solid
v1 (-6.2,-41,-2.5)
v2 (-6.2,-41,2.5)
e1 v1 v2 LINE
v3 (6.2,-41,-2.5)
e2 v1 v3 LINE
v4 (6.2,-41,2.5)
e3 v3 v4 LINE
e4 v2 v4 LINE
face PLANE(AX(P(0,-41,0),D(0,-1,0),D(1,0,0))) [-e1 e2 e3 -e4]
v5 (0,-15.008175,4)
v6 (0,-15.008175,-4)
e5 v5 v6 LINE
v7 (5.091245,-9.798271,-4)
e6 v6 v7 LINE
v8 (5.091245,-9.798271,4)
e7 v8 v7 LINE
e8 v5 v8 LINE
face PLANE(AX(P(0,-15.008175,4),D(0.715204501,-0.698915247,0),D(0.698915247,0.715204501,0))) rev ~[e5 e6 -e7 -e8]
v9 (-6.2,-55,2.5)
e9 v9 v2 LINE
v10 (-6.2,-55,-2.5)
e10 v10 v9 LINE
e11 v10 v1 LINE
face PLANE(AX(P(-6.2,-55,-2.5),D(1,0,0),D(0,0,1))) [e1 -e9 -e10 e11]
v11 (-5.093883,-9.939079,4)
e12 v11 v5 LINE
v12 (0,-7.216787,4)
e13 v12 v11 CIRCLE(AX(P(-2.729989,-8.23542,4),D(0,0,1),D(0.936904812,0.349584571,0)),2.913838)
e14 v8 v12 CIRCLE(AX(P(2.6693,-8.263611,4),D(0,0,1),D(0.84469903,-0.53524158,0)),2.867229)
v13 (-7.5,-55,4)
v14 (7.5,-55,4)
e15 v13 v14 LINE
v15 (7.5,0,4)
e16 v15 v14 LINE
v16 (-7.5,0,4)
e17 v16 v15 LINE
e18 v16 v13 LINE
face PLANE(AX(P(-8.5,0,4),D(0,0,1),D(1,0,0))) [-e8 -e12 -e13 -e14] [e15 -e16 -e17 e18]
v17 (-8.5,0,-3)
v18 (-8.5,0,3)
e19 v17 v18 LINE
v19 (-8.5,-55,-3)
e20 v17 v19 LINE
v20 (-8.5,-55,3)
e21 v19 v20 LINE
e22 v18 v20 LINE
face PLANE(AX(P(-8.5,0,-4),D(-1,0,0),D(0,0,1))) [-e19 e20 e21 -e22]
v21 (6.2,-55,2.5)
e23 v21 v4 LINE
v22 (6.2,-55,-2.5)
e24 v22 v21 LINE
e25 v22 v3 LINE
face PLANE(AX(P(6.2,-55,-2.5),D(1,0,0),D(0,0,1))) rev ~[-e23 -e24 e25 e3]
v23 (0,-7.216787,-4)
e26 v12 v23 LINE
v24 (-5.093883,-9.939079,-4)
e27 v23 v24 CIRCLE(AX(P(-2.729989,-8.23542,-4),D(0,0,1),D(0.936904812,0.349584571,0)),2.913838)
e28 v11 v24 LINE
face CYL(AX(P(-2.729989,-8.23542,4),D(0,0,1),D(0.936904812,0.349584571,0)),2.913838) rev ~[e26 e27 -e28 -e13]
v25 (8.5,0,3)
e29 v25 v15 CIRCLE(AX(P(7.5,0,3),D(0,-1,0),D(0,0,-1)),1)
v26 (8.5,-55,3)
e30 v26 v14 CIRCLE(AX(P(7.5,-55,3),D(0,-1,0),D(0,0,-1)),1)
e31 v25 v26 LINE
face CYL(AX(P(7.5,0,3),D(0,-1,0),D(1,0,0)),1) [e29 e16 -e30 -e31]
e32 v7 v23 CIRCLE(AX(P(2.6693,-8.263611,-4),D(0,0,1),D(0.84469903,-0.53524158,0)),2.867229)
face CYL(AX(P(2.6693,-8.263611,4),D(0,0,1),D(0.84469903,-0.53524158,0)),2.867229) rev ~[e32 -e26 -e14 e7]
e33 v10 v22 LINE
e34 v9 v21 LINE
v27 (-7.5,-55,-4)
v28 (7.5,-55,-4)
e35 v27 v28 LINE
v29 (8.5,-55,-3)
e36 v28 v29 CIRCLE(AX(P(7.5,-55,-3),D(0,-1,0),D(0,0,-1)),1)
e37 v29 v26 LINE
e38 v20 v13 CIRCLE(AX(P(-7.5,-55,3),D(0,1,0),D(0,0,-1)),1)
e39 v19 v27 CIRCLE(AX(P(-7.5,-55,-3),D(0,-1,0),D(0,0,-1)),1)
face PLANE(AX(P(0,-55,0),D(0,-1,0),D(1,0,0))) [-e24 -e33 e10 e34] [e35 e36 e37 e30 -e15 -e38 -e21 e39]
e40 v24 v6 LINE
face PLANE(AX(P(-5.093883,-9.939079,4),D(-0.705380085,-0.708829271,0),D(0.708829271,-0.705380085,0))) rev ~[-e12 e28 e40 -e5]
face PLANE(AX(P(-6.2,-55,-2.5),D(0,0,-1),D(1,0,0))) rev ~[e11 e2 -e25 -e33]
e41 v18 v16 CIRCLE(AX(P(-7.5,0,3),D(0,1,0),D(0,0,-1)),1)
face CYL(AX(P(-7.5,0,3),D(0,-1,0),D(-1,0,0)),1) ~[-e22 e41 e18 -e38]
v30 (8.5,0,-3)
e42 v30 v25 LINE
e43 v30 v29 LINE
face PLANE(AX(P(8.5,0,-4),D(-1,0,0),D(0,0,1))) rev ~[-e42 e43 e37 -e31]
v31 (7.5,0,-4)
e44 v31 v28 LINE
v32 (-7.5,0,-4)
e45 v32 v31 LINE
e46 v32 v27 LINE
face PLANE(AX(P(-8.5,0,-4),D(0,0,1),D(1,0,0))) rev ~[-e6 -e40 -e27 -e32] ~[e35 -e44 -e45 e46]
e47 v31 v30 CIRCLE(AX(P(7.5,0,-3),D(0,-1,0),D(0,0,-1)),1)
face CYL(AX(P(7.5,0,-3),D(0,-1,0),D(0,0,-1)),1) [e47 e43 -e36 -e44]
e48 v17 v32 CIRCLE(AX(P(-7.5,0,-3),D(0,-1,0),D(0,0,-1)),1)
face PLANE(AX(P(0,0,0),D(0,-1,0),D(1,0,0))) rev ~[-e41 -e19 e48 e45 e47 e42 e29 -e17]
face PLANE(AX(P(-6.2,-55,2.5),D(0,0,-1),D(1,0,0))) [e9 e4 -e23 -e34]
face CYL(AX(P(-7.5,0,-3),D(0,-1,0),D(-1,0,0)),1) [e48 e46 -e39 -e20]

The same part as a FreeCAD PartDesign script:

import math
import FreeCAD as App
import Part
import Sketcher

V = App.Vector
Q = App.Units.Quantity


def edges_at(feature, points):
    """Names of the edges that pass closest to the given points."""
    edges = feature.Shape.Edges
    near = lambda p: min(range(len(edges)), key=lambda i: edges[i].distToShape(Part.Vertex(*p))[0])
    return sorted({f"Edge{near(p) + 1}" for p in points})


def add_polygon(sketch, points):
    """Adds a closed chain of lines whose ends are joined by coincident constraints."""
    first, n = sketch.GeometryCount, len(points)
    for a, b in zip(points, points[1:] + points[:1]):
        sketch.addGeometry(Part.LineSegment(App.Vector(*a, 0), App.Vector(*b, 0)), False)
    for i in range(n):
        sketch.addConstraint(Sketcher.Constraint("Coincident", first + i, 2, first + (i + 1) % n, 1))

doc = App.newDocument("Part")
body = doc.addObject("PartDesign::Body", "Body")

sketch1 = doc.addObject("Sketcher::SketchObject", "Sketch")
body.addObject(sketch1)
sketch1.AttachmentSupport = (doc.XZ_Plane, [""])
sketch1.MapMode = "FlatFace"
add_polygon(sketch1, [(-8, 4), (-8, -4), (8, -4), (8, 4)])
sketch1.addConstraint([
    Sketcher.Constraint("Vertical", 0),
    Sketcher.Constraint("Horizontal", 1),
    Sketcher.Constraint("Vertical", 2),
    Sketcher.Constraint("Horizontal", 3),
    Sketcher.Constraint("Symmetric", 0, 2, 2, 2, -1, 1),
    Sketcher.Constraint("DistanceX", 1, 1, 1, 2, Q("17 mm")),
    Sketcher.Constraint("DistanceY", 0, 2, 0, 1, Q("8 mm")),
])
pad1 = doc.addObject("PartDesign::Pad", "Pad")
body.addObject(pad1)
pad1.Profile = sketch1
pad1.Length = 55
doc.recompute()

fillet = doc.addObject("PartDesign::Fillet", "Fillet")
body.addObject(fillet)
fillet.Base = (pad1, edges_at(pad1, [
    (-8.5, -27.5, 4),
    (-8.5, -27.5, -4),
    (8.5, -27.5, -4),
    (8.5, -27.5, 4),
]))
fillet.Radius = 1

sketch2 = doc.addObject("Sketcher::SketchObject", "Sketch001")
body.addObject(sketch2)
sketch2.AttachmentSupport = (doc.XZ_Plane, [""])
sketch2.MapMode = "FlatFace"
sketch2.AttachmentOffset = App.Placement(V(0, 0, 55), App.Rotation())
add_polygon(sketch2, [(-6, 2), (-6, -2), (6, -2), (6, 2)])
sketch2.addConstraint([
    Sketcher.Constraint("Vertical", 0),
    Sketcher.Constraint("Horizontal", 1),
    Sketcher.Constraint("Vertical", 2),
    Sketcher.Constraint("Horizontal", 3),
    Sketcher.Constraint("Symmetric", 0, 2, 2, 2, -1, 1),
    Sketcher.Constraint("DistanceY", 0, 2, 0, 1, Q("5 mm")),
    Sketcher.Constraint("DistanceX", 1, 1, 1, 2, Q("12.4 mm")),
])
pocket1 = doc.addObject("PartDesign::Pocket", "Pocket")
body.addObject(pocket1)
pocket1.Profile = sketch2
pocket1.Length = 14

sketch3 = doc.addObject("Sketcher::SketchObject", "Sketch002")
body.addObject(sketch3)
sketch3.AttachmentSupport = (doc.XY_Plane, [""])
sketch3.MapMode = "FlatFace"
sketch3.AttachmentOffset = App.Placement(V(0, 0, 4), App.Rotation())
sketch3.addGeometry([
    Part.ArcOfCircle(Part.Circle(V(2.7, -8.3, 0), V(0, 0, 1), 2.9), math.radians(-32), math.radians(159)),
    Part.ArcOfCircle(Part.Circle(V(-2.7, -8.2, 0), V(0, 0, 1), 2.9), math.radians(20), math.radians(216)),
    Part.LineSegment(V(-5.1, -9.9, 0), V(0, -15, 0)),
    Part.LineSegment(V(0, -15, 0), V(5.1, -9.8, 0)),
], False)
sketch3.addConstraint([
    Sketcher.Constraint("Coincident", 0, 2, 1, 1),
    Sketcher.Constraint("Coincident", 1, 2, 2, 1),
    Sketcher.Constraint("Coincident", 2, 2, 3, 1),
    Sketcher.Constraint("Coincident", 3, 2, 0, 1),
    Sketcher.Constraint("PointOnObject", 0, 2, -2),
    Sketcher.Constraint("PointOnObject", 2, 2, -2),
    Sketcher.Constraint("Radius", 0, Q("2.867229 mm")),
    Sketcher.Constraint("Radius", 1, Q("2.913838 mm")),
    Sketcher.Constraint("DistanceX", -1, 1, 0, 3, Q("2.6693 mm")),
    Sketcher.Constraint("DistanceY", 0, 3, -1, 1, Q("8.263611 mm")),
    Sketcher.Constraint("DistanceX", 1, 3, -1, 1, Q("2.729989 mm")),
    Sketcher.Constraint("DistanceY", 1, 2, -1, 1, Q("9.939079 mm")),
    Sketcher.Constraint("DistanceY", 3, 2, -1, 1, Q("9.798271 mm")),
    Sketcher.Constraint("DistanceY", 2, 2, 0, 2, Q("7.791388 mm")),
])
pocket2 = doc.addObject("PartDesign::Pocket", "Pocket001")
body.addObject(pocket2)
pocket2.Profile = sketch3
pocket2.Length = 25

doc.recompute()
